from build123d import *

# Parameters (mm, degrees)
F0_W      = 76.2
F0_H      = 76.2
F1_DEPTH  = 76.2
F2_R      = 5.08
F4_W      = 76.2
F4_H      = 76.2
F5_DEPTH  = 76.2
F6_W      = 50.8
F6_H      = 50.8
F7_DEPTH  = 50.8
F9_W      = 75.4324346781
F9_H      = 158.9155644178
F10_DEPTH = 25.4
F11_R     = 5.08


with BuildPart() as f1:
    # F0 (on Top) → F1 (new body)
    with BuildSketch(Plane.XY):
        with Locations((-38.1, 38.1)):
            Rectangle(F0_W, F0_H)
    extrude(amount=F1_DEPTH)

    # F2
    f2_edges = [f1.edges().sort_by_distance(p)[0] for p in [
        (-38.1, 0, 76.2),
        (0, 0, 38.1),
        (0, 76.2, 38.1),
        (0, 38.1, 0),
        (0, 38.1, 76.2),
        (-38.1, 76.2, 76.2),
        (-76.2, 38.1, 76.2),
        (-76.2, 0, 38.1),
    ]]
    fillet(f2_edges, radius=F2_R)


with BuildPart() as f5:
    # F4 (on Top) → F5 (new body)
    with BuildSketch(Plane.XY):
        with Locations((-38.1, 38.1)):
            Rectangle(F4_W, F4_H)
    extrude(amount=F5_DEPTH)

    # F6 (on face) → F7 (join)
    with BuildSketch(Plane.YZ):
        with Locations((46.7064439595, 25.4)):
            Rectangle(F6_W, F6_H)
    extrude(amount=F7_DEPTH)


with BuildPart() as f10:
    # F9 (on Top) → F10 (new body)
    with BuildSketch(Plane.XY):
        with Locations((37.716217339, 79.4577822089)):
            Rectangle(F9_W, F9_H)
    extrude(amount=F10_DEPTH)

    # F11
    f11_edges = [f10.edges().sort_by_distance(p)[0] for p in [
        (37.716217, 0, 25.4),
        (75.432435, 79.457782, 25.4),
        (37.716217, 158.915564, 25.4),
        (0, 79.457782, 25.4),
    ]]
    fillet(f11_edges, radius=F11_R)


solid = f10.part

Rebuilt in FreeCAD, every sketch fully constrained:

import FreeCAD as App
import Part
import Sketcher
from FreeCAD import Vector
Q = App.Units.Quantity


def edges_at(feature, points):
    """Names of the edges that pass closest to the given points."""
    edges = feature.Shape.Edges
    near = lambda p: min(range(len(edges)), key=lambda i: edges[i].distToShape(Part.Vertex(*p))[0])
    return sorted({f"Edge{near(p) + 1}" for p in points})


def add_polygon(sketch, points):
    """Adds a closed chain of lines whose ends are joined by coincident constraints."""
    first, n = sketch.GeometryCount, len(points)
    for a, b in zip(points, points[1:] + points[:1]):
        sketch.addGeometry(Part.LineSegment(App.Vector(*a, 0), App.Vector(*b, 0)), False)
    for i in range(n):
        sketch.addConstraint(Sketcher.Constraint("Coincident", first + i, 2, first + (i + 1) % n, 1))

doc = App.newDocument("Part")
body = doc.addObject("PartDesign::Body", "Body")

# Sketch on XY plane
sketch1 = doc.addObject("Sketcher::SketchObject", "Sketch")
body.addObject(sketch1)
sketch1.AttachmentSupport = (doc.XY_Plane, [""])
sketch1.MapMode = "FlatFace"
add_polygon(sketch1, [(-76, 76), (-76, 0), (0, 0), (0, 76)])  # lines 0-3
sketch1.addConstraint([
    Sketcher.Constraint("Vertical", 0),
    Sketcher.Constraint("Horizontal", 1),
    Sketcher.Constraint("Vertical", 2),
    Sketcher.Constraint("Horizontal", 3),
    Sketcher.Constraint("Coincident", 1, 2, -1, 1),
    Sketcher.Constraint("Equal", 3, 0),
    Sketcher.Constraint("DistanceX", 1, 1, 1, 2, Q("3 in")),
])
pad1 = doc.addObject("PartDesign::Pad", "Pad")
body.addObject(pad1)
pad1.Profile = sketch1
pad1.Length = Q("3 in")
doc.recompute()

fillet = doc.addObject("PartDesign::Fillet", "Fillet")
body.addObject(fillet)
fillet.Base = (pad1, edges_at(pad1, [
    (-38.1, 0, 76.2),
    (0, 0, 38.1),
    (0, 76.2, 38.1),
    (0, 38.1, 0),
    (0, 38.1, 76.2),
    (-38.1, 76.2, 76.2),
    (-76.2, 38.1, 76.2),
    (-76.2, 0, 38.1),
]))
fillet.Radius = Q("0.2 in")
body2 = doc.addObject("PartDesign::Body", "Body001")

# Sketch on XY plane
sketch2 = doc.addObject("Sketcher::SketchObject", "Sketch001")
body2.addObject(sketch2)
sketch2.AttachmentSupport = (doc.getObject("XY_Plane001"), [""])
sketch2.MapMode = "FlatFace"
add_polygon(sketch2, [(-76, 76), (-76, 0), (0, 0), (0, 76)])  # lines 0-3
sketch2.addConstraint([
    Sketcher.Constraint("Vertical", 0),
    Sketcher.Constraint("Horizontal", 1),
    Sketcher.Constraint("Vertical", 2),
    Sketcher.Constraint("Horizontal", 3),
    Sketcher.Constraint("Coincident", 1, 2, -1, 1),
    Sketcher.Constraint("Equal", 3, 0),
    Sketcher.Constraint("DistanceX", 1, 1, 1, 2, Q("3 in")),
])
pad2 = doc.addObject("PartDesign::Pad", "Pad001")
body2.addObject(pad2)
pad2.Profile = sketch2
pad2.Length = Q("3 in")

# Sketch on YZ plane
sketch3 = doc.addObject("Sketcher::SketchObject", "Sketch002")
body2.addObject(sketch3)
sketch3.AttachmentSupport = (doc.getObject("YZ_Plane001"), [""])
sketch3.MapMode = "FlatFace"
add_polygon(sketch3, [(21, 51), (21, 0), (72, 0), (72, 51)])  # lines 0-3
sketch3.addConstraint([
    Sketcher.Constraint("Vertical", 0),
    Sketcher.Constraint("Horizontal", 1),
    Sketcher.Constraint("Vertical", 2),
    Sketcher.Constraint("Horizontal", 3),
    Sketcher.Constraint("PointOnObject", 0, 2, -1),
    Sketcher.Constraint("Equal", 3, 0),
    Sketcher.Constraint("DistanceX", 1, 1, 1, 2, Q("2 in")),
    Sketcher.Constraint("DistanceX", -1, 1, 0, 2, 21.306444),
])
pad3 = doc.addObject("PartDesign::Pad", "Pad002")
body2.addObject(pad3)
pad3.Profile = sketch3
pad3.Length = Q("2 in")
body3 = doc.addObject("PartDesign::Body", "Body002")

# Sketch on XY plane
sketch4 = doc.addObject("Sketcher::SketchObject", "Sketch003")
body3.addObject(sketch4)
sketch4.AttachmentSupport = (doc.getObject("XY_Plane002"), [""])
sketch4.MapMode = "FlatFace"
add_polygon(sketch4, [(0, 159), (0, 0), (75, 0), (75, 159)])  # lines 0-3
sketch4.addConstraint([
    Sketcher.Constraint("Vertical", 0),
    Sketcher.Constraint("Horizontal", 1),
    Sketcher.Constraint("Vertical", 2),
    Sketcher.Constraint("Horizontal", 3),
    Sketcher.Constraint("Coincident", 0, 2, -1, 1),
    Sketcher.Constraint("DistanceX", 1, 1, 1, 2, 75.432435),
    Sketcher.Constraint("DistanceY", 0, 2, 0, 1, 158.915564),
])
pad4 = doc.addObject("PartDesign::Pad", "Pad003")
body3.addObject(pad4)
pad4.Profile = sketch4
pad4.Length = Q("1 in")
doc.recompute()

fillet2 = doc.addObject("PartDesign::Fillet", "Fillet001")
body3.addObject(fillet2)
fillet2.Base = (pad4, edges_at(pad4, [
    (37.716, 0, 25.4),
    (75.432, 79.458, 25.4),
    (37.716, 158.916, 25.4),
    (0, 79.458, 25.4),
]))
fillet2.Radius = Q("0.2 in")
body.Visibility = False
body2.Visibility = False

doc.recompute()
